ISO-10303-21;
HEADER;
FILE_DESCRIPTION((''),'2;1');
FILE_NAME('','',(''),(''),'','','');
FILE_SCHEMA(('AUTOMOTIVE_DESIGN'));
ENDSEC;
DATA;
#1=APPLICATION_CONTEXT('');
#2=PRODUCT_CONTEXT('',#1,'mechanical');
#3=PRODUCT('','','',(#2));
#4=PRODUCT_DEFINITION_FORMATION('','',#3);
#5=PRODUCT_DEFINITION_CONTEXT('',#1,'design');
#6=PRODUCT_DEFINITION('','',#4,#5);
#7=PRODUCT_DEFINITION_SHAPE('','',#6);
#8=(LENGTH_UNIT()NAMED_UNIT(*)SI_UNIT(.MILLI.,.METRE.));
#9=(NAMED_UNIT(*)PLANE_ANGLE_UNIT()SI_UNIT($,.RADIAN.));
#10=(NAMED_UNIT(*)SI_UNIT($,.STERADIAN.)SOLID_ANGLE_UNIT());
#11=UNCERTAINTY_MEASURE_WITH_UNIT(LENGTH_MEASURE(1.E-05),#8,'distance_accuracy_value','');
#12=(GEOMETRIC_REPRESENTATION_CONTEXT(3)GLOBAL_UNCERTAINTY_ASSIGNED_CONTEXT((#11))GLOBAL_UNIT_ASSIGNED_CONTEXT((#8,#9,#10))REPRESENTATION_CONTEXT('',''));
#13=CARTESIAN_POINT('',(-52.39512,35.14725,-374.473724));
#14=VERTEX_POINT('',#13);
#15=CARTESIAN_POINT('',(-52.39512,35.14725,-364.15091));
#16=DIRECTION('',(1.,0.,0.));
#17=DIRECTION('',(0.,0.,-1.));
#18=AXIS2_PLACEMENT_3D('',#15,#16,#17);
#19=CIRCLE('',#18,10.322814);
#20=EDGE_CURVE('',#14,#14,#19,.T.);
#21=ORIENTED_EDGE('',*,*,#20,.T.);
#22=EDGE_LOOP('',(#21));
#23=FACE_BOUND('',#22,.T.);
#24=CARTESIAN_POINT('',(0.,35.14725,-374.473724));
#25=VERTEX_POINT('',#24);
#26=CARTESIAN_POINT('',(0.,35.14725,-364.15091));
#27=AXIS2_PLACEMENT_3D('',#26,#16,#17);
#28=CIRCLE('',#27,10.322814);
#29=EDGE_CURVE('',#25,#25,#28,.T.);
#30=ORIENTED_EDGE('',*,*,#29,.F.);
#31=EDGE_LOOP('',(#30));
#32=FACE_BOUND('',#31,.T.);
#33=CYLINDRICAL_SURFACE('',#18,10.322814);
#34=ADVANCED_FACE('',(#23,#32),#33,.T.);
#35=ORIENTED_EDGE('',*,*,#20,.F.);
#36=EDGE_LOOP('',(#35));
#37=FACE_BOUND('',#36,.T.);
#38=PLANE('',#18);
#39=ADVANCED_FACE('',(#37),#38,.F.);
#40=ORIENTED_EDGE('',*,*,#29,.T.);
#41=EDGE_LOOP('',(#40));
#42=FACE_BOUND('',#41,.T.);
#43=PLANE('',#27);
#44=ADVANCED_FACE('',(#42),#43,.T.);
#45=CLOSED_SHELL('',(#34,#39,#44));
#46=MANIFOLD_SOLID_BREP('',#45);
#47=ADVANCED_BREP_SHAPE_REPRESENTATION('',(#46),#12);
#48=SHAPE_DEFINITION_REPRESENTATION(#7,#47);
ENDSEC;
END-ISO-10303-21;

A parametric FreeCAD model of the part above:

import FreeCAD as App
import Part
import Sketcher
Q = App.Units.Quantity

doc = App.newDocument("Part")
body = doc.addObject("PartDesign::Body", "Body")

sketch1 = doc.addObject("Sketcher::SketchObject", "Sketch")
body.addObject(sketch1)
sketch1.AttachmentSupport = (doc.YZ_Plane, [""])
sketch1.MapMode = "FlatFace"
sketch1.addGeometry(Part.Circle(App.Vector(35.14725, -364.15091, 0), App.Vector(0, 0, 1), 10.322814), False)
sketch1.addConstraint(Sketcher.Constraint("Diameter", 0, Q("20.645628 mm")))
sketch1.addConstraint(Sketcher.Constraint("DistanceX", -1, 1, 0, 3, Q("35.14725 mm")))
sketch1.addConstraint(Sketcher.Constraint("DistanceY", 0, 3, -1, 1, Q("364.15091 mm")))
pad1 = doc.addObject("PartDesign::Pad", "Pad")
body.addObject(pad1)
pad1.Profile = sketch1
pad1.Length = 52.39512
pad1.Reversed = True

doc.recompute()
